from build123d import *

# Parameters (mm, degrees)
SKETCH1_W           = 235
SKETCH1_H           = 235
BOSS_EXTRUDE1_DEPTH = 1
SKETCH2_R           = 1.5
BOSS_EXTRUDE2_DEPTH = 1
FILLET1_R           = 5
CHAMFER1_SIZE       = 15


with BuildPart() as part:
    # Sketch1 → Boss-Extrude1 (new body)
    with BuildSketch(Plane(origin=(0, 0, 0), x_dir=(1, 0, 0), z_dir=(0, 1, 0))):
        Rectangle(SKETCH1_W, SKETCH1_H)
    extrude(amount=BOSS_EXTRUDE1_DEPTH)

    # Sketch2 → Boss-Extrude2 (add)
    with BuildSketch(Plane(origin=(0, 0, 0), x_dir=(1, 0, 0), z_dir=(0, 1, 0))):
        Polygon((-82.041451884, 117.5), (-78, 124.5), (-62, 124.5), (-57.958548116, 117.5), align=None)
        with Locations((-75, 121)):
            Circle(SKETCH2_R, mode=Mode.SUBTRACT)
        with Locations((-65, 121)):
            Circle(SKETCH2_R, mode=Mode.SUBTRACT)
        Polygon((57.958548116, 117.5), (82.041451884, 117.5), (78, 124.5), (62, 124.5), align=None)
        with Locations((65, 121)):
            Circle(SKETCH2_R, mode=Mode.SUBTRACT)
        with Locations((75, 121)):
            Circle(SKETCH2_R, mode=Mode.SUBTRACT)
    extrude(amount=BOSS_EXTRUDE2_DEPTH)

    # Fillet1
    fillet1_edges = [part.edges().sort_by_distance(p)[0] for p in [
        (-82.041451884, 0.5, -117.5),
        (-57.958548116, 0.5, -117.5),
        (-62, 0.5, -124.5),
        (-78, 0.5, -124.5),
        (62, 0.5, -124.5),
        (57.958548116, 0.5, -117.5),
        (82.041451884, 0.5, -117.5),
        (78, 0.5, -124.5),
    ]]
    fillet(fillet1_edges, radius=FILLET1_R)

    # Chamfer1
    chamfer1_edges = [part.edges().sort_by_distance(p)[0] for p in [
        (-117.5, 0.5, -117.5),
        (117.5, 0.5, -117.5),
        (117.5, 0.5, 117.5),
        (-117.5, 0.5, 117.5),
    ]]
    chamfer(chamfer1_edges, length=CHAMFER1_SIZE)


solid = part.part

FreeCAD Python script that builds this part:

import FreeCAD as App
import Part
import Sketcher
from FreeCAD import Vector
Q = App.Units.Quantity


def edges_at(feature, points):
    """Names of the edges that pass closest to the given points."""
    edges = feature.Shape.Edges
    near = lambda p: min(range(len(edges)), key=lambda i: edges[i].distToShape(Part.Vertex(*p))[0])
    return sorted({f"Edge{near(p) + 1}" for p in points})

doc = App.newDocument("Part")
body = doc.addObject("PartDesign::Body", "Body")

# Sketch on XZ plane
sketch1 = body.newObject("Sketcher::SketchObject", "Sketch")
sketch1.AttachmentSupport = (doc.getObject("XZ_Plane"), [""])
sketch1.MapMode = "FlatFace"
sketch1.addGeometry(Part.LineSegment(Vector(-118, -118, 0), Vector(-118, 118, 0)), False)
sketch1.addGeometry(Part.LineSegment(Vector(-118, 118, 0), Vector(118, 118, 0)), False)
sketch1.addGeometry(Part.LineSegment(Vector(118, 118, 0), Vector(118, -118, 0)), False)
sketch1.addGeometry(Part.LineSegment(Vector(118, -118, 0), Vector(-118, -118, 0)), False)
sketch1.addConstraint(Sketcher.Constraint("Coincident", 0, 2, 1, 1))
sketch1.addConstraint(Sketcher.Constraint("Coincident", 1, 2, 2, 1))
sketch1.addConstraint(Sketcher.Constraint("Coincident", 2, 2, 3, 1))
sketch1.addConstraint(Sketcher.Constraint("Coincident", 3, 2, 0, 1))
sketch1.addConstraint(Sketcher.Constraint("Vertical", 0))
sketch1.addConstraint(Sketcher.Constraint("Horizontal", 1))
sketch1.addConstraint(Sketcher.Constraint("Vertical", 2))
sketch1.addConstraint(Sketcher.Constraint("Horizontal", 3))
sketch1.addConstraint(Sketcher.Constraint("Symmetric", 0, 2, 2, 2, -1, 1))
sketch1.addConstraint(Sketcher.Constraint("Equal", 3, 0))
sketch1.addConstraint(Sketcher.Constraint("DistanceX", 1, 1, 1, 2, 235.0))
pad1 = body.newObject("PartDesign::Pad", "Pad")
pad1.Profile = sketch1
pad1.Length = 1
pad1.Reversed = True

# Sketch on XZ plane
sketch2 = body.newObject("Sketcher::SketchObject", "Sketch001")
sketch2.AttachmentSupport = (doc.getObject("XZ_Plane"), [""])
sketch2.MapMode = "FlatFace"
sketch2.addGeometry(Part.LineSegment(Vector(-78, -124.5, 0), Vector(-82, -117.5, 0)), False)
sketch2.addGeometry(Part.LineSegment(Vector(-82, -117.5, 0), Vector(-58, -117.5, 0)), False)
sketch2.addGeometry(Part.LineSegment(Vector(-58, -117.5, 0), Vector(-62, -124.5, 0)), False)
sketch2.addGeometry(Part.LineSegment(Vector(-62, -124.5, 0), Vector(-78, -124.5, 0)), False)
sketch2.addGeometry(Part.Circle(Vector(-65, -121, 0), Vector(0, 0, 1), 1.5), False)
sketch2.addGeometry(Part.Circle(Vector(-75, -121, 0), Vector(0, 0, 1), 1.5), False)
sketch2.addGeometry(Part.LineSegment(Vector(58, -117.5, 0), Vector(82, -117.5, 0)), False)
sketch2.addGeometry(Part.LineSegment(Vector(82, -117.5, 0), Vector(78, -124.5, 0)), False)
sketch2.addGeometry(Part.LineSegment(Vector(78, -124.5, 0), Vector(62, -124.5, 0)), False)
sketch2.addGeometry(Part.LineSegment(Vector(62, -124.5, 0), Vector(58, -117.5, 0)), False)
sketch2.addGeometry(Part.Circle(Vector(65, -121, 0), Vector(0, 0, 1), 1.5), False)
sketch2.addGeometry(Part.Circle(Vector(75, -121, 0), Vector(0, 0, 1), 1.5), False)
sketch2.addConstraint(Sketcher.Constraint("Coincident", 0, 2, 1, 1))
sketch2.addConstraint(Sketcher.Constraint("Coincident", 1, 2, 2, 1))
sketch2.addConstraint(Sketcher.Constraint("Coincident", 2, 2, 3, 1))
sketch2.addConstraint(Sketcher.Constraint("Coincident", 3, 2, 0, 1))
sketch2.addConstraint(Sketcher.Constraint("Coincident", 6, 2, 7, 1))
sketch2.addConstraint(Sketcher.Constraint("Coincident", 7, 2, 8, 1))
sketch2.addConstraint(Sketcher.Constraint("Coincident", 8, 2, 9, 1))
sketch2.addConstraint(Sketcher.Constraint("Coincident", 9, 2, 6, 1))
sketch2.addConstraint(Sketcher.Constraint("Horizontal", 1))
sketch2.addConstraint(Sketcher.Constraint("Horizontal", 3))
sketch2.addConstraint(Sketcher.Constraint("Horizontal", 6))
sketch2.addConstraint(Sketcher.Constraint("Horizontal", 8))
sketch2.addConstraint(Sketcher.Constraint("Equal", 4, 5))
sketch2.addConstraint(Sketcher.Constraint("Equal", 5, 10))
sketch2.addConstraint(Sketcher.Constraint("Equal", 10, 11))
sketch2.addConstraint(Sketcher.Constraint("Symmetric", 4, 3, 10, 3, -2))
sketch2.addConstraint(Sketcher.Constraint("Symmetric", 5, 3, 11, 3, -2))
sketch2.addConstraint(Sketcher.Constraint("Symmetric", 0, 2, 6, 2, -2))
sketch2.addConstraint(Sketcher.Constraint("Symmetric", 3, 2, 7, 2, -2))
sketch2.addConstraint(Sketcher.Constraint("Parallel", 2, 7))
sketch2.addConstraint(Sketcher.Constraint("Parallel", 0, 9))
sketch2.addConstraint(Sketcher.Constraint("Horizontal", 4, 3, 5, 3))
sketch2.addConstraint(Sketcher.Constraint("Equal", 1, 6))
sketch2.addConstraint(Sketcher.Constraint("Diameter", 4, 3.0))
sketch2.addConstraint(Sketcher.Constraint("DistanceX", 3, 2, 3, 1, 16.0))
sketch2.addConstraint(Sketcher.Constraint("Angle", 0, Q("120 deg")))
sketch2.addConstraint(Sketcher.Constraint("DistanceX", 4, 3, -1, 1, 65.0))
sketch2.addConstraint(Sketcher.Constraint("DistanceY", 4, 3, -1, 1, 121.0))
sketch2.addConstraint(Sketcher.Constraint("DistanceX", 5, 3, -1, 1, 75.0))
sketch2.addConstraint(Sketcher.Constraint("DistanceX", 2, 2, -1, 1, 62.0))
sketch2.addConstraint(Sketcher.Constraint("DistanceY", 2, 2, 1, 2, 7.0))
sketch2.addConstraint(Sketcher.Constraint("DistanceY", 0, 2, -1, 1, 117.5))
pad2 = body.newObject("PartDesign::Pad", "Pad001")
pad2.Profile = sketch2
pad2.Length = 1
pad2.Reversed = True
doc.recompute()

fillet = body.newObject("PartDesign::Fillet", "Fillet")
fillet.Base = (pad2, edges_at(pad2, [
    (-82.041, 0.5, -117.5),
    (-57.959, 0.5, -117.5),
    (-62, 0.5, -124.5),
    (-78, 0.5, -124.5),
    (62, 0.5, -124.5),
    (57.959, 0.5, -117.5),
    (82.041, 0.5, -117.5),
    (78, 0.5, -124.5),
]))
fillet.Radius = 5
doc.recompute()

chamfer = body.newObject("PartDesign::Chamfer", "Chamfer")
chamfer.Base = (fillet, edges_at(fillet, [
    (-117.5, 0.5, -117.5),
    (117.5, 0.5, -117.5),
    (117.5, 0.5, 117.5),
    (-117.5, 0.5, 117.5),
]))
chamfer.Size = 15

doc.recompute()
